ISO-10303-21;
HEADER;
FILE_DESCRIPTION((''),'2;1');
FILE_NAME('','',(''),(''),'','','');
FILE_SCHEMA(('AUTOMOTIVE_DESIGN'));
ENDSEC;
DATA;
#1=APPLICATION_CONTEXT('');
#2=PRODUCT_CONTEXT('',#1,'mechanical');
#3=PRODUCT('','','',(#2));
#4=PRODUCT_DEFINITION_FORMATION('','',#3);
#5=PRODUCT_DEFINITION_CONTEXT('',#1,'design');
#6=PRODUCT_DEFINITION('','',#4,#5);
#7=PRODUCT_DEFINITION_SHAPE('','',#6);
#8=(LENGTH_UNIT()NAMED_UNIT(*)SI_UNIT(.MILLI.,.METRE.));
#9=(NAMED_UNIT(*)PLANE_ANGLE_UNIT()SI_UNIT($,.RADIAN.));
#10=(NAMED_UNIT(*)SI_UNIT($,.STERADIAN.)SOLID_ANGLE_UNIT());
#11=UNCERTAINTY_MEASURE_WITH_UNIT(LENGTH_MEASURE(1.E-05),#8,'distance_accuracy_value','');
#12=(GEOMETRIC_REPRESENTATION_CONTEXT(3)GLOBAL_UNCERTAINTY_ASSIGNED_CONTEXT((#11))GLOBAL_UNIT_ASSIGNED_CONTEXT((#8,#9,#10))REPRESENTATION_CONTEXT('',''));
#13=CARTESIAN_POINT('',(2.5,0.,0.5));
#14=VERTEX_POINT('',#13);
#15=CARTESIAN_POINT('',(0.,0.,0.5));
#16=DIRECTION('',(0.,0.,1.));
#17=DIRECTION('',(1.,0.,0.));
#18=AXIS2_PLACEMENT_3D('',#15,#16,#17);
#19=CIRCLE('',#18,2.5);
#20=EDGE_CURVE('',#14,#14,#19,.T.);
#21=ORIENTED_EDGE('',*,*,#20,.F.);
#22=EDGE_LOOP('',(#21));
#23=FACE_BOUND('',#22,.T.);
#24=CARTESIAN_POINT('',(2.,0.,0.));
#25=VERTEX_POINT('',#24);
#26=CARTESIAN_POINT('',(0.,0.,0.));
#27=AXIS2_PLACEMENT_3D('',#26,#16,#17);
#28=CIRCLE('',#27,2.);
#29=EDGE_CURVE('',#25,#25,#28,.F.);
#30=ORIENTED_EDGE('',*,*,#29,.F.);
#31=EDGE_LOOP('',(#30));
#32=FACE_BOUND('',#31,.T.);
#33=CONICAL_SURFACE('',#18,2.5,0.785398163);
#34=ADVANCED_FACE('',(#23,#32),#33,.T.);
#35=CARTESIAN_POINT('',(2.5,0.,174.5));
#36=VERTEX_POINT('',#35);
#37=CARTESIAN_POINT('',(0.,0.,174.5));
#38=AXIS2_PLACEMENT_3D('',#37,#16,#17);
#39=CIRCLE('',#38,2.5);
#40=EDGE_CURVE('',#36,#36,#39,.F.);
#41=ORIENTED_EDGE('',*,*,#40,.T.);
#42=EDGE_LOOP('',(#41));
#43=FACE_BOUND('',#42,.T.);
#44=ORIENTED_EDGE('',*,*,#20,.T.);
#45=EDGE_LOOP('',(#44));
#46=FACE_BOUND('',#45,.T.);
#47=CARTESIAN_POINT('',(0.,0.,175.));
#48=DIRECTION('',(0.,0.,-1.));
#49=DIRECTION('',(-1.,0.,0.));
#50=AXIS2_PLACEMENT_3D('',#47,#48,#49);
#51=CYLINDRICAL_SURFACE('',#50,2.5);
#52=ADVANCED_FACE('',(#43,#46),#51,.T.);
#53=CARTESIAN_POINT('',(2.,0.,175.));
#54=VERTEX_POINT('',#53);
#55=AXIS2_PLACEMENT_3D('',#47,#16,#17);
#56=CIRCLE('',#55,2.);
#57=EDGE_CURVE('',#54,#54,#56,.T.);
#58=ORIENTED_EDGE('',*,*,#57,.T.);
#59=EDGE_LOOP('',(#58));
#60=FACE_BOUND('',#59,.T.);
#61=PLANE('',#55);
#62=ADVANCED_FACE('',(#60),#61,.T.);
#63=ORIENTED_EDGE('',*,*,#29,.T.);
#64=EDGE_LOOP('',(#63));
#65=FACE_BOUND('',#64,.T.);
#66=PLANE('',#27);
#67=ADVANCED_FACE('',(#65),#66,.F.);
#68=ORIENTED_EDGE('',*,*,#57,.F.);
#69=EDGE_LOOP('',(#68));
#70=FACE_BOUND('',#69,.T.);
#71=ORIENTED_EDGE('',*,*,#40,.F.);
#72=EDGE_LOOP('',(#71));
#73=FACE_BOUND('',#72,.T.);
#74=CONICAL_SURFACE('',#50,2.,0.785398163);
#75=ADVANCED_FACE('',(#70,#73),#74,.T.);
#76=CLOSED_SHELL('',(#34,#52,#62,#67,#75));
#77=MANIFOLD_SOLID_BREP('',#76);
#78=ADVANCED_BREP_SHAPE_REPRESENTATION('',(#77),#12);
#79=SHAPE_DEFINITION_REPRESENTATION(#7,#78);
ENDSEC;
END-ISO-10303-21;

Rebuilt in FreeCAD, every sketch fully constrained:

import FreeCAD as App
import Part
import Sketcher


def edges_at(feature, points):
    """Names of the edges that pass closest to the given points."""
    edges = feature.Shape.Edges
    near = lambda p: min(range(len(edges)), key=lambda i: edges[i].distToShape(Part.Vertex(*p))[0])
    return sorted({f"Edge{near(p) + 1}" for p in points})

doc = App.newDocument("Part")
body = doc.addObject("PartDesign::Body", "Body")

sketch1 = body.newObject("Sketcher::SketchObject", "Sketch")
sketch1.AttachmentSupport = (doc.getObject("XY_Plane"), [""])
sketch1.MapMode = "FlatFace"
sketch1.addGeometry(Part.Circle(App.Vector(0, 0, 0), App.Vector(0, 0, 1), 2.5), False)
sketch1.addConstraint([
    Sketcher.Constraint("Coincident", 0, 3, -1, 1),
    Sketcher.Constraint("Diameter", 0, 5.0),
])
pad1 = body.newObject("PartDesign::Pad", "Pad")
pad1.Profile = sketch1
pad1.Length = 175
doc.recompute()

chamfer = body.newObject("PartDesign::Chamfer", "Chamfer")
chamfer.Base = (pad1, edges_at(pad1, [(-2.5, 0, 0), (-2.5, 0, 175)]))
chamfer.Size = 0.5

doc.recompute()
